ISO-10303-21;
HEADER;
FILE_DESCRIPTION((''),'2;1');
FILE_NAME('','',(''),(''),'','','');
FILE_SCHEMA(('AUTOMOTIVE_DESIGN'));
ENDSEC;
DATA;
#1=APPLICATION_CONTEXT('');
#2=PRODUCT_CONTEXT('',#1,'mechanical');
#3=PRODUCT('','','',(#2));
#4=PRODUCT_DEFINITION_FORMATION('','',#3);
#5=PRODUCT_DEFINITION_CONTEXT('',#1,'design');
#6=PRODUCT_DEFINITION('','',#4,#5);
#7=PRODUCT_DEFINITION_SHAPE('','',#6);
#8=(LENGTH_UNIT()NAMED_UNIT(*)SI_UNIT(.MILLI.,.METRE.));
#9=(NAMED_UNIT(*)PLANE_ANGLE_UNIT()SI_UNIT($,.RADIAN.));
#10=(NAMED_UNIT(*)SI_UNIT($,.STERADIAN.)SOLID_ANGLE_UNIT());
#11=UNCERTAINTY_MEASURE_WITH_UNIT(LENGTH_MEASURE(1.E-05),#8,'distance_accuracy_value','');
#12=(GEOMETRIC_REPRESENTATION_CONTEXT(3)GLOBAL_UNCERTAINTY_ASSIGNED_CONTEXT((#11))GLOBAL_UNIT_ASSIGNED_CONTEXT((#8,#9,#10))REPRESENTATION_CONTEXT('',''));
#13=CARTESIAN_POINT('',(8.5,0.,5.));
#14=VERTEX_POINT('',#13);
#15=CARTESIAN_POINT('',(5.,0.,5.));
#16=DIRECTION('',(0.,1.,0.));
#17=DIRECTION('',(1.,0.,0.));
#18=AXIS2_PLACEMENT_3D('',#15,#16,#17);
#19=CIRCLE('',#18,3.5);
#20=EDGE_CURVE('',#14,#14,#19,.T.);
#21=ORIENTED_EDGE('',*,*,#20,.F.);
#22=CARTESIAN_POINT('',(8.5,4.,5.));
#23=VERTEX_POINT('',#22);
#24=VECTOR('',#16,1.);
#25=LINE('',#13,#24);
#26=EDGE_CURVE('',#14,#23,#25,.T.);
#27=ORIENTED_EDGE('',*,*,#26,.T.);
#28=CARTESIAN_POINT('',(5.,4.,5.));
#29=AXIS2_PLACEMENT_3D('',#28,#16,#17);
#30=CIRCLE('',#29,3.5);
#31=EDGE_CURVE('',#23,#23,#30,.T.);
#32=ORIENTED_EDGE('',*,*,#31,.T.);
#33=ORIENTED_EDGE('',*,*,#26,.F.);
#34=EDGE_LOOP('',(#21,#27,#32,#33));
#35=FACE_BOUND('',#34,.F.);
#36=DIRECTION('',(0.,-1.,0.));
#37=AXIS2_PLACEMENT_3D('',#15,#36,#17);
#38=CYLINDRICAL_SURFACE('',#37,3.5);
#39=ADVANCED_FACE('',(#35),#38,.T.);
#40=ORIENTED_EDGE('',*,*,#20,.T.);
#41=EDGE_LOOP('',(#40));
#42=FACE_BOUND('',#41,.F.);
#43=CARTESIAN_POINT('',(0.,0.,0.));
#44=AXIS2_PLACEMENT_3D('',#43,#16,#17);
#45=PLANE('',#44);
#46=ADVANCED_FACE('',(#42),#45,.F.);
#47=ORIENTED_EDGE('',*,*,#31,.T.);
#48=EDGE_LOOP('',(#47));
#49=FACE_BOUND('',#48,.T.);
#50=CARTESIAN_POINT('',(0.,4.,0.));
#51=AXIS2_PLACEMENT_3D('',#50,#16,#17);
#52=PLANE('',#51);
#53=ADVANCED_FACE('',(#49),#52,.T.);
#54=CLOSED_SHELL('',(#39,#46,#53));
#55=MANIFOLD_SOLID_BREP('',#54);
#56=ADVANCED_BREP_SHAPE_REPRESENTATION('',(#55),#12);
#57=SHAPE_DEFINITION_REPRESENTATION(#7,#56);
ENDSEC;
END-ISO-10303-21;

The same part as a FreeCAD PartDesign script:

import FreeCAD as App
import Part
import Sketcher
from FreeCAD import Vector
Q = App.Units.Quantity

doc = App.newDocument("Part")
body = doc.addObject("PartDesign::Body", "Body")

# Sketch on XZ plane
sketch1 = body.newObject("Sketcher::SketchObject", "Sketch")
sketch1.AttachmentSupport = (doc.getObject("XZ_Plane"), [""])
sketch1.MapMode = "FlatFace"
sketch1.addGeometry(Part.Circle(Vector(5, 5, 0), Vector(0, 0, 1), 3.5), False)
sketch1.addConstraint([
    Sketcher.Constraint("Diameter", 0, Q("7 mm")),
    Sketcher.Constraint("DistanceX", -1, 1, 0, 3, Q("5 mm")),
    Sketcher.Constraint("DistanceY", -1, 1, 0, 3, Q("5 mm")),
])
pad1 = body.newObject("PartDesign::Pad", "Pad")
pad1.Profile = sketch1
pad1.Length = 4
pad1.Reversed = True

doc.recompute()
